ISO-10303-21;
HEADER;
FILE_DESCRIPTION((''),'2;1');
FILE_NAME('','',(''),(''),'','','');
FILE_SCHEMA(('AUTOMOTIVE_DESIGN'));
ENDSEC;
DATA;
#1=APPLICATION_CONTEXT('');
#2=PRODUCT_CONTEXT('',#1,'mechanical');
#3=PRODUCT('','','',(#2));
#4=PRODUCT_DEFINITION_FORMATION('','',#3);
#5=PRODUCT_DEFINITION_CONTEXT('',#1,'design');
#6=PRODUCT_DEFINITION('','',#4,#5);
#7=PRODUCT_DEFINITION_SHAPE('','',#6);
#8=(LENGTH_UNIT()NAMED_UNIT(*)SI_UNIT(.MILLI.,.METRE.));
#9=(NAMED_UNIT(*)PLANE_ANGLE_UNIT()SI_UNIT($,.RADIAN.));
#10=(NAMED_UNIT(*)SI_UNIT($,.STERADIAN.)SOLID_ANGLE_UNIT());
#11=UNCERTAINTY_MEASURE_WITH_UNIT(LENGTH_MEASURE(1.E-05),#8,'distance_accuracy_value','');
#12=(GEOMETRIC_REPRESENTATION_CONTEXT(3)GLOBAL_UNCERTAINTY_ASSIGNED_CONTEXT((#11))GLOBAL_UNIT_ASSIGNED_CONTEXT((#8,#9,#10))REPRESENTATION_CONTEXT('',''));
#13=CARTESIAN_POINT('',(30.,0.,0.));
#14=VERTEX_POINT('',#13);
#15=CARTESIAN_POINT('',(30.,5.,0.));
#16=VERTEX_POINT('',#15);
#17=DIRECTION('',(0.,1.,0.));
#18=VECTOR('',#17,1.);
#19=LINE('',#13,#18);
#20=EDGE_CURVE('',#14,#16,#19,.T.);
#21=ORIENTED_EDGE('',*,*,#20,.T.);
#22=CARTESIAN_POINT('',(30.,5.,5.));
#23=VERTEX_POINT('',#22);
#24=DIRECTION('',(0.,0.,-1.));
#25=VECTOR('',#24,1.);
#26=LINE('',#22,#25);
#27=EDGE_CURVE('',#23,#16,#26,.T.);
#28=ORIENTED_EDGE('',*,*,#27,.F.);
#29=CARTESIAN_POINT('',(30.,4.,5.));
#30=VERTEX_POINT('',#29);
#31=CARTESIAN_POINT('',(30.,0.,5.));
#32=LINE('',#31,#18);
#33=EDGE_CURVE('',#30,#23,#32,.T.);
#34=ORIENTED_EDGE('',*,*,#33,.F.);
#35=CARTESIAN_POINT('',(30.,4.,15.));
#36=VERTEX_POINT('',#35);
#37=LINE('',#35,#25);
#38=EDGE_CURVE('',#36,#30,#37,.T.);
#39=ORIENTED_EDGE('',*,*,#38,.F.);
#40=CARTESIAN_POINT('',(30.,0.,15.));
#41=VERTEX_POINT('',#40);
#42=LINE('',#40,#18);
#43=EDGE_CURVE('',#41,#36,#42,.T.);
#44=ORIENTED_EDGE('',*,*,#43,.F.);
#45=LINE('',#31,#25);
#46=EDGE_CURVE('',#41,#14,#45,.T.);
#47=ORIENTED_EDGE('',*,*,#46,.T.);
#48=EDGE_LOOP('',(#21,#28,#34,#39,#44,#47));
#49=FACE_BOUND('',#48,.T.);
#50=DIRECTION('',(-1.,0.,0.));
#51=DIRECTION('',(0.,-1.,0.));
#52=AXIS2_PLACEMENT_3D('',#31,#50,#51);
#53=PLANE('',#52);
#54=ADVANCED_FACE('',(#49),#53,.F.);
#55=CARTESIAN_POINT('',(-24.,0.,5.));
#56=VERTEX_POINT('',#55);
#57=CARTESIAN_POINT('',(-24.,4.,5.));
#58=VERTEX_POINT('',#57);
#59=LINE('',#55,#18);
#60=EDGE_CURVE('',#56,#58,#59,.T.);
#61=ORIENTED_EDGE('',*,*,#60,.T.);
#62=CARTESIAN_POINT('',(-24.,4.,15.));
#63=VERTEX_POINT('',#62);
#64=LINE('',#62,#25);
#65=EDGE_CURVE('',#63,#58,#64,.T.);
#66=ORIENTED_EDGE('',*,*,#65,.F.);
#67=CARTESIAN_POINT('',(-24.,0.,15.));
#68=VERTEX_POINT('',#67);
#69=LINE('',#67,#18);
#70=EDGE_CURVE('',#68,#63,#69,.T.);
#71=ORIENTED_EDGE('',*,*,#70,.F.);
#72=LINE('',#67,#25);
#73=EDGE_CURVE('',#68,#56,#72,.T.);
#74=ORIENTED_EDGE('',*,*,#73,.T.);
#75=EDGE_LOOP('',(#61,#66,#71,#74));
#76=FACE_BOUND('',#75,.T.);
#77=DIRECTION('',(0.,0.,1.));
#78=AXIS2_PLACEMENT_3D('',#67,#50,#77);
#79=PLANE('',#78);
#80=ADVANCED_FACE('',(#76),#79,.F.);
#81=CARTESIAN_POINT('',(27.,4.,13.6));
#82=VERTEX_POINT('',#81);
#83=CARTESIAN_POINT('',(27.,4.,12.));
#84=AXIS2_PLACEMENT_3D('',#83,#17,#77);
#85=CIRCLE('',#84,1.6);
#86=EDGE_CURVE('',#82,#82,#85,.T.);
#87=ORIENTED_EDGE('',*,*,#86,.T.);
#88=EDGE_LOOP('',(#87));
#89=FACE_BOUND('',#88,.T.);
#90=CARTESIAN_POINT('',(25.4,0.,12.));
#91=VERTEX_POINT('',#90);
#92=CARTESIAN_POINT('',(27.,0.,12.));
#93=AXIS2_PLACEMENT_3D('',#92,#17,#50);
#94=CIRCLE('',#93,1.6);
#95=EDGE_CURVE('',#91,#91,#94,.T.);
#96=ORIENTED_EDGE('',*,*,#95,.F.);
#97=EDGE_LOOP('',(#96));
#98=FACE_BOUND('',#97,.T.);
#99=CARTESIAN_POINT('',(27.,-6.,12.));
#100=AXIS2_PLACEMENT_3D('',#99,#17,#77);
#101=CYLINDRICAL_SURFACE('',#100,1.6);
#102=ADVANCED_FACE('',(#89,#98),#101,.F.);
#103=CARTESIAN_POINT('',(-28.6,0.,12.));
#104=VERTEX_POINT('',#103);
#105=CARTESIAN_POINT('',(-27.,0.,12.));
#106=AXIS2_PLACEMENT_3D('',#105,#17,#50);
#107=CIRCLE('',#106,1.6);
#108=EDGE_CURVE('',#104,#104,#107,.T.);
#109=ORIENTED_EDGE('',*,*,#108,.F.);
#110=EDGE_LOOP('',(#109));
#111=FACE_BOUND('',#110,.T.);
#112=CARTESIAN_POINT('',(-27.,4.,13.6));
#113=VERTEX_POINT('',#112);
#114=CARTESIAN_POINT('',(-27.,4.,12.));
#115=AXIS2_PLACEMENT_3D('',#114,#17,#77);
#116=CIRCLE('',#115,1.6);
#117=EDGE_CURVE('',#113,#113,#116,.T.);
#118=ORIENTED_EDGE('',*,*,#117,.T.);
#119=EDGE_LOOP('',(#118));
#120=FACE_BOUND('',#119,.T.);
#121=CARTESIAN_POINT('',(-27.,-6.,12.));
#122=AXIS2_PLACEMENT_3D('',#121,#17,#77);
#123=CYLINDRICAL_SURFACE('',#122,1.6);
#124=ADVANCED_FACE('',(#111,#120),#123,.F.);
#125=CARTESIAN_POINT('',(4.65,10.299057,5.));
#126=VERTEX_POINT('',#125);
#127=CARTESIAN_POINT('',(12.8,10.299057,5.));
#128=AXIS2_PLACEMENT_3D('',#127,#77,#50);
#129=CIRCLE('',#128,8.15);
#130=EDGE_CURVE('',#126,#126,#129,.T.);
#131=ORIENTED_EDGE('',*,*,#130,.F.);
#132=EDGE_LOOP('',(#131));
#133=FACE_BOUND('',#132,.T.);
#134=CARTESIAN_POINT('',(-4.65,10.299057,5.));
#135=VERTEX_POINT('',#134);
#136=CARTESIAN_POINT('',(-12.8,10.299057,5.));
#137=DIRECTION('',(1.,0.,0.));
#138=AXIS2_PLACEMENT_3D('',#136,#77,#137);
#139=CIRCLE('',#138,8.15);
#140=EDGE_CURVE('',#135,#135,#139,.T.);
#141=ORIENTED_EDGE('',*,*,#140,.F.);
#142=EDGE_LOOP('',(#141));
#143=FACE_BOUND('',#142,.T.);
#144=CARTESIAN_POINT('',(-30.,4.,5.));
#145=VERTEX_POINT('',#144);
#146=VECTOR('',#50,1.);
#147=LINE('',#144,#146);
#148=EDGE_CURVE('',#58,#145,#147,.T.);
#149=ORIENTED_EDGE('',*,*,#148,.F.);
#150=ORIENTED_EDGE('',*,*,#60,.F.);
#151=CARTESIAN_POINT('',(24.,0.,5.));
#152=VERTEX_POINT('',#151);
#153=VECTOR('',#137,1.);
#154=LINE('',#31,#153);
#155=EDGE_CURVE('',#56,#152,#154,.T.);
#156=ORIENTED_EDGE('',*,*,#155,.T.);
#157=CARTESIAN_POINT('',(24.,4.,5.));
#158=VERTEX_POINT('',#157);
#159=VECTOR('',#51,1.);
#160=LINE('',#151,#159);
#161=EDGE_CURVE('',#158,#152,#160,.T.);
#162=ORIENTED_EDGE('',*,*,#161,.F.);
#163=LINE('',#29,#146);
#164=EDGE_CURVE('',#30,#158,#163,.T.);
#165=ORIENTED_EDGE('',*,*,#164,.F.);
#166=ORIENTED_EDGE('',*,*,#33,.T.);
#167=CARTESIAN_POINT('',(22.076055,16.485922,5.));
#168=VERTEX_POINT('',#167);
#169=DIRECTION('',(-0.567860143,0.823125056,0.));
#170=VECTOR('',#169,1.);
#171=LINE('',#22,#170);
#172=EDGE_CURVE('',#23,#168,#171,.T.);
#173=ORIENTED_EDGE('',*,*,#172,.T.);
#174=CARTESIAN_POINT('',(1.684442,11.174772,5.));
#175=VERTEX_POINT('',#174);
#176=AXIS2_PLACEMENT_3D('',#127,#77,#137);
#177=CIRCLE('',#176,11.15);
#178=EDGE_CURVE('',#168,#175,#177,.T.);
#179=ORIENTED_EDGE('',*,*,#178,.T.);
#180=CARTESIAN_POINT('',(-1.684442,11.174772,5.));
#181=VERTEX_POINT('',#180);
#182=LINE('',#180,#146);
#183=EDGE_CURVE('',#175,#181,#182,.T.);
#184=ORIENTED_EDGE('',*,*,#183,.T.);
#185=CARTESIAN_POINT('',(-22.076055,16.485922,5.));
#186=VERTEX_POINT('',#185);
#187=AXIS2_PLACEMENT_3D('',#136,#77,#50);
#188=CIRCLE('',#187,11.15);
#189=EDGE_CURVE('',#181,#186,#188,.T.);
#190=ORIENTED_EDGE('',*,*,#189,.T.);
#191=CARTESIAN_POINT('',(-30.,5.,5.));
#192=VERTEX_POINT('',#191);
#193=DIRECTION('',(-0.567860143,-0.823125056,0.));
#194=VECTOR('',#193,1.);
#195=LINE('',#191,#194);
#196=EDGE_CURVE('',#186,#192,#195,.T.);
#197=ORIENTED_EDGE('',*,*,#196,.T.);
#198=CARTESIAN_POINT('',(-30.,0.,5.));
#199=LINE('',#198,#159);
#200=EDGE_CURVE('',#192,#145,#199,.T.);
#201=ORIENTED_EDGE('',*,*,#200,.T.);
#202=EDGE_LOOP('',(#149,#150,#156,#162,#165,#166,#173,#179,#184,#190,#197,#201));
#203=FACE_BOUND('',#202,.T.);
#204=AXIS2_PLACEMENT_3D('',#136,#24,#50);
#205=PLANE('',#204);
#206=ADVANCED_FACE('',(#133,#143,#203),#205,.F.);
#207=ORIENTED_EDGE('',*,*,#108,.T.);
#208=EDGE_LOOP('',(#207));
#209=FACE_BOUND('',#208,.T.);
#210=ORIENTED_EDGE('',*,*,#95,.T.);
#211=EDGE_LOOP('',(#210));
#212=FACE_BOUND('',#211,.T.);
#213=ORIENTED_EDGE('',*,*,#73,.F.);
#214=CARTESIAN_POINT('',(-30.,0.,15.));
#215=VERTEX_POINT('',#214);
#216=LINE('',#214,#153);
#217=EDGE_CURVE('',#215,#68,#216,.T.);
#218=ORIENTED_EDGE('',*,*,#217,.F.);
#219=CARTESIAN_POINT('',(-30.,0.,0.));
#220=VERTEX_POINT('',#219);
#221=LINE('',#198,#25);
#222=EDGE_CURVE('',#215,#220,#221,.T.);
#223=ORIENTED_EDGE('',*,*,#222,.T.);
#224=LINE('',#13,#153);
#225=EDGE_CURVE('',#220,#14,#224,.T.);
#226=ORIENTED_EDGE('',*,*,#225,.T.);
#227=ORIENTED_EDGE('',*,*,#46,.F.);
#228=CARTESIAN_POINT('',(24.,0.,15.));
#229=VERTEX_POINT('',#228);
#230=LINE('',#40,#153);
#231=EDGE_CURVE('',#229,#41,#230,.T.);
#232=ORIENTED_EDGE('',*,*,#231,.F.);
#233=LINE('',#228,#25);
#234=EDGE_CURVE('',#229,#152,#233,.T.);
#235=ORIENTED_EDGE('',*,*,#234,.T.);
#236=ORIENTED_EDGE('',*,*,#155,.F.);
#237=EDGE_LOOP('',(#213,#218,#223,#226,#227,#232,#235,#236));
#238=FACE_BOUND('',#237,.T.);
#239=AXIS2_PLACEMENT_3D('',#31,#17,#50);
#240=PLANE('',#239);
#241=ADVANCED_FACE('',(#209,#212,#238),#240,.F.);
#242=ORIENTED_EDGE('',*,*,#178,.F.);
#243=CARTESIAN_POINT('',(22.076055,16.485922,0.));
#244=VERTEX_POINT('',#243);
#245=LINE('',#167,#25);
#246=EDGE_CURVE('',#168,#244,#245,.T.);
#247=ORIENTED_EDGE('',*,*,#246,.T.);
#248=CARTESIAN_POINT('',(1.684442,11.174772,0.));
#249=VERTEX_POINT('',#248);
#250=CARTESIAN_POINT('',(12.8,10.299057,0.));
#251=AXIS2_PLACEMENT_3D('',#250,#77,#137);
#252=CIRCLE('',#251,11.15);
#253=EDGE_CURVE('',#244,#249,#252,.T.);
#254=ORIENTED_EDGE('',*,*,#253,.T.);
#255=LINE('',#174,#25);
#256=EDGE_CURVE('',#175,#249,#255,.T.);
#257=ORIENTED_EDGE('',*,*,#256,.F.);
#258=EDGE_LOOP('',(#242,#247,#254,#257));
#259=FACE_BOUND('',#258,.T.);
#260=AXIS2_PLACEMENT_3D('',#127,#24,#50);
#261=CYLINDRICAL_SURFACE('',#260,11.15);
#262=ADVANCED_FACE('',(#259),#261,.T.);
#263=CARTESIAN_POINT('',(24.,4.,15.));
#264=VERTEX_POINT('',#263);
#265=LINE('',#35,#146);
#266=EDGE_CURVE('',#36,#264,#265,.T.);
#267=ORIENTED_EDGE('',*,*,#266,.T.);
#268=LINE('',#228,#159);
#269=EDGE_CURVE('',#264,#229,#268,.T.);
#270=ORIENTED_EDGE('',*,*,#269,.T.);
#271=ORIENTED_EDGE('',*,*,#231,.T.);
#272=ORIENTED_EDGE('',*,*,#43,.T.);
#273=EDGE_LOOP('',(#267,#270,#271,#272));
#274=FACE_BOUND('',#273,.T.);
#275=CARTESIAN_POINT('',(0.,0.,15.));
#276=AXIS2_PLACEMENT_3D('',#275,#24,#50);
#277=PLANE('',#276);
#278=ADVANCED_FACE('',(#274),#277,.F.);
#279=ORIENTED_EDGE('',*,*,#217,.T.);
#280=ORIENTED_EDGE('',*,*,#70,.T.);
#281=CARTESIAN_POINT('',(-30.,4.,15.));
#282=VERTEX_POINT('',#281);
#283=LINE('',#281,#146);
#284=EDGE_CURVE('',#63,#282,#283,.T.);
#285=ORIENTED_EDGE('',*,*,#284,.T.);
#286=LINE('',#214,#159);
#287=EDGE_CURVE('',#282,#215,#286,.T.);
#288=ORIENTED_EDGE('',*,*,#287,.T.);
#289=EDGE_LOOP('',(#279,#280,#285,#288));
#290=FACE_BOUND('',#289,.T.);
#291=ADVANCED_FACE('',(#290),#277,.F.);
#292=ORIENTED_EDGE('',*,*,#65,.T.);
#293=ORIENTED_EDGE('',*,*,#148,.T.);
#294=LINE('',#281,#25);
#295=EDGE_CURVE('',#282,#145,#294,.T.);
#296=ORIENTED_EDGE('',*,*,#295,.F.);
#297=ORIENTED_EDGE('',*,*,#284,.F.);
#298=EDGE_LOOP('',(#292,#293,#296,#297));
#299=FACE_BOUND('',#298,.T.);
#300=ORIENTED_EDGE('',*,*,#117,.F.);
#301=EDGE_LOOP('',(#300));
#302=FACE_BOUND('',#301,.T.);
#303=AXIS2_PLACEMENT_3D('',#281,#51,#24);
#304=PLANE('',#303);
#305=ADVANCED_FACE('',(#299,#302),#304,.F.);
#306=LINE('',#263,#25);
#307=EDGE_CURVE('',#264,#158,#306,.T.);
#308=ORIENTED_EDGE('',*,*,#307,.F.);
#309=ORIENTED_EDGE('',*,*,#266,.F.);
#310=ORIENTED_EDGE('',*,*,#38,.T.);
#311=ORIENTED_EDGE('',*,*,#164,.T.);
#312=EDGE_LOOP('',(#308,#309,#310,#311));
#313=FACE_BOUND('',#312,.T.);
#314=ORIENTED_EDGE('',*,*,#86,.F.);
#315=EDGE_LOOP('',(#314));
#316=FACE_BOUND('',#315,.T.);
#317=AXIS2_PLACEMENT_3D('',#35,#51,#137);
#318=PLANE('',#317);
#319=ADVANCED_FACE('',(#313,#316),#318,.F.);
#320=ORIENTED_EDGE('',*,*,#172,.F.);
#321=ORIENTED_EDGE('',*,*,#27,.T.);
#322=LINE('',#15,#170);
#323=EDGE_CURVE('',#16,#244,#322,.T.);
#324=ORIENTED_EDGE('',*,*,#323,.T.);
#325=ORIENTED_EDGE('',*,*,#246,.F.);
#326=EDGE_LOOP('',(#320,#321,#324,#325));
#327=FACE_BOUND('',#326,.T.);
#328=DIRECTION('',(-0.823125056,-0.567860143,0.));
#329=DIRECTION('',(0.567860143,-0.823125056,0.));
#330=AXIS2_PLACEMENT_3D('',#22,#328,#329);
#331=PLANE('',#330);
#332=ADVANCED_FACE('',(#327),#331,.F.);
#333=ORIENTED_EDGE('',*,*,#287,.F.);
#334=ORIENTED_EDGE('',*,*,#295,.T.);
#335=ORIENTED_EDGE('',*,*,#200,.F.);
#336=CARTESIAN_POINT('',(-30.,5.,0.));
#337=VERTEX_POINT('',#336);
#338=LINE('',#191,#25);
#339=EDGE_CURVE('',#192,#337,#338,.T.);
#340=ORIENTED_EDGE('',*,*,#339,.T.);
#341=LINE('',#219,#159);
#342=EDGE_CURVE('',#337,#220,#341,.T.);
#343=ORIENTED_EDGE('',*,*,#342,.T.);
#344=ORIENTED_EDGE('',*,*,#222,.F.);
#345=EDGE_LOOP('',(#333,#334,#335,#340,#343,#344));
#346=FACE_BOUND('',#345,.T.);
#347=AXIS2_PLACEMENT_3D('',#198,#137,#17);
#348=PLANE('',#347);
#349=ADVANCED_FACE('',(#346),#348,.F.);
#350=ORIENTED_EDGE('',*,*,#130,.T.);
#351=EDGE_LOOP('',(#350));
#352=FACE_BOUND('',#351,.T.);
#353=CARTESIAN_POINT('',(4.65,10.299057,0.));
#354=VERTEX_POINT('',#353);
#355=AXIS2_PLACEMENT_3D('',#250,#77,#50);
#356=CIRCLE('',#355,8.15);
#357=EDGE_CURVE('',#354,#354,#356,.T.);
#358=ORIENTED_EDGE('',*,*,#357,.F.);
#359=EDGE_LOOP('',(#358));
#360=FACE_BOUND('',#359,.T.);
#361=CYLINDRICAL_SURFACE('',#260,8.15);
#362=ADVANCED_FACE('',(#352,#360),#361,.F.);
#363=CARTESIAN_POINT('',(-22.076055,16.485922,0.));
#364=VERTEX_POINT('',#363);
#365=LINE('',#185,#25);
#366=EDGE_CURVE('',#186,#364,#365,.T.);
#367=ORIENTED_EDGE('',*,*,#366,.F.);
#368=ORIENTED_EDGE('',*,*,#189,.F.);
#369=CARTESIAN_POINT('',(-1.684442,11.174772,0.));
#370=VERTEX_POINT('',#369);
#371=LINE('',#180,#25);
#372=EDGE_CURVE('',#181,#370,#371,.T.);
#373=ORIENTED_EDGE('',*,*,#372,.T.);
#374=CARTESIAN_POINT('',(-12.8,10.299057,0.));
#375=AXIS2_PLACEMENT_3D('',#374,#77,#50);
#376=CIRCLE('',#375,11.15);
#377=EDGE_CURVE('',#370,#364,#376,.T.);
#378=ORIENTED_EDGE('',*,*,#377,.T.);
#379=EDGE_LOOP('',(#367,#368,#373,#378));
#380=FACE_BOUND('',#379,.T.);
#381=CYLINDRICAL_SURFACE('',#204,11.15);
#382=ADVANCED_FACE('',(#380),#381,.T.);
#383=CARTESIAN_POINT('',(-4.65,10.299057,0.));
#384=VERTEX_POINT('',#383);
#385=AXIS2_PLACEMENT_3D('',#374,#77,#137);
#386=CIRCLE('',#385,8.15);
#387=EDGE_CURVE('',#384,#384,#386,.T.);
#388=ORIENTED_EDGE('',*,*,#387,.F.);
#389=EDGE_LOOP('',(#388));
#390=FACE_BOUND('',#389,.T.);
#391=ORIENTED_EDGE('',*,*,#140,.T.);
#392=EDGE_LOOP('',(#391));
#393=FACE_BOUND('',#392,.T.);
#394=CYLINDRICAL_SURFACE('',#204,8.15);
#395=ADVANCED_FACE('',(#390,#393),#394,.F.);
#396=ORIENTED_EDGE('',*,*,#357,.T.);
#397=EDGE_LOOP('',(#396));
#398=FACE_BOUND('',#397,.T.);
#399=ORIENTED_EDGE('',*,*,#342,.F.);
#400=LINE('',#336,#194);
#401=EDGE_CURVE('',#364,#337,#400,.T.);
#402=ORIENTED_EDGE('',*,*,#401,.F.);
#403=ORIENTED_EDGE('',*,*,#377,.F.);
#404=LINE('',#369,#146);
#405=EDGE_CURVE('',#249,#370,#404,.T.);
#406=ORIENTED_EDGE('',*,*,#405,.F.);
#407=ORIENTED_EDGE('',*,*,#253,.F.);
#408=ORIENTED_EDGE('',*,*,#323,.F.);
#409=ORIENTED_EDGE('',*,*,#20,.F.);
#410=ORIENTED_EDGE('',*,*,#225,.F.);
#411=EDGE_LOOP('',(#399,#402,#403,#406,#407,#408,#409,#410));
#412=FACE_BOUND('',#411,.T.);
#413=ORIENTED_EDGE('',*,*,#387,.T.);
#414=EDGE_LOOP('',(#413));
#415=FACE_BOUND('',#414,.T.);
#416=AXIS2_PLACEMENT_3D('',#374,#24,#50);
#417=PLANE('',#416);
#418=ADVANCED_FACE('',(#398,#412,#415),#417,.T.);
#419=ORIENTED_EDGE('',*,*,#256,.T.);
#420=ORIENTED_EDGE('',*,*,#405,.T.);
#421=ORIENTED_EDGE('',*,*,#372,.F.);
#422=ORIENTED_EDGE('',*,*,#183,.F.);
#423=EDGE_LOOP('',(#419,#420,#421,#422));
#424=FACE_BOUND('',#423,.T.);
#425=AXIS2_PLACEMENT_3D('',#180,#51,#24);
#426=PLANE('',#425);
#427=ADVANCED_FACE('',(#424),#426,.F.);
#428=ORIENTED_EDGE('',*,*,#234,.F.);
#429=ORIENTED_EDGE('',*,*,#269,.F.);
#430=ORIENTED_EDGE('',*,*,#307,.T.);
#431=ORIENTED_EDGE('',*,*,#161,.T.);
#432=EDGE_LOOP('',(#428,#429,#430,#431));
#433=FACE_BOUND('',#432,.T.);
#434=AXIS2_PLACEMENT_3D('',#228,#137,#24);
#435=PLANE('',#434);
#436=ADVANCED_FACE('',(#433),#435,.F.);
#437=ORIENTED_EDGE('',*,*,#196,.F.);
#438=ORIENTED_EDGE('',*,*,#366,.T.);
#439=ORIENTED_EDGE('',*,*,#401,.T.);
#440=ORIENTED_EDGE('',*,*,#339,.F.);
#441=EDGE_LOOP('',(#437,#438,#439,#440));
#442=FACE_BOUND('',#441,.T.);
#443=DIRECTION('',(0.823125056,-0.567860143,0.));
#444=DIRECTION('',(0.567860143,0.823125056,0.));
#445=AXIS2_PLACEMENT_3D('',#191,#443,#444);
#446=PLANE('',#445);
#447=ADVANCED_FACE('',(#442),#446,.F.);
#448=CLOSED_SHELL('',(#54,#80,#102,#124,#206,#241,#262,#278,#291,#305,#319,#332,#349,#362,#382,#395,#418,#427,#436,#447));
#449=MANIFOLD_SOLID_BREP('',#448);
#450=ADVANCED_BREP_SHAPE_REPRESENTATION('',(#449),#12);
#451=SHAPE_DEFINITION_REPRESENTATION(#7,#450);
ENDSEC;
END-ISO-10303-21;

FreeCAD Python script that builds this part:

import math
import FreeCAD as App
import Part
import Sketcher
from FreeCAD import Vector
Q = App.Units.Quantity


def add_polygon(sketch, points):
    """Adds a closed chain of lines whose ends are joined by coincident constraints."""
    first, n = sketch.GeometryCount, len(points)
    for a, b in zip(points, points[1:] + points[:1]):
        sketch.addGeometry(Part.LineSegment(App.Vector(*a, 0), App.Vector(*b, 0)), False)
    for i in range(n):
        sketch.addConstraint(Sketcher.Constraint("Coincident", first + i, 2, first + (i + 1) % n, 1))

doc = App.newDocument("Part")
params = doc.addObject("Spreadsheet::Sheet", "Params")
for row, (alias, value) in enumerate([
    ("sketch1_diameter", "16.3 mm"),
    ("sketch1_width", "60 mm"),
    ("sketch1_height", "5 mm"),
    ("sketch1_radius", "11.15 mm"),
    ("pad1_length", "5 mm"),
    ("sketch2_width", "6 mm"),
    ("sketch2_height", "4 mm"),
    ("pad2_length", "10 mm"),
    ("sketch3_diameter", "3.2 mm"),
    ("pocket1_length", "10 mm"),
], start=1):
    params.set(f"A{row}", alias)
    params.set(f"B{row}", "=" + value)
    params.setAlias(f"B{row}", alias)

body = doc.addObject("PartDesign::Body", "Body")

# Sketch on XY plane
sketch1 = body.newObject("Sketcher::SketchObject", "Sketch")
sketch1.AttachmentSupport = (doc.getObject("XY_Plane"), [""])
sketch1.MapMode = "FlatFace"
sketch1.addGeometry([
    Part.LineSegment(Vector(-30, 0, 0), Vector(30, 0, 0)),  # 0
    Part.LineSegment(Vector(30, 0, 0), Vector(30, 5, 0)),  # 1
    Part.LineSegment(Vector(30, 5, 0), Vector(22.1, 16.5, 0)),  # 2
    Part.ArcOfCircle(Part.Circle(Vector(12.8, 10.3, 0), Vector(0, 0, 1), 11.2), math.radians(34), math.radians(175)),  # 3
    Part.LineSegment(Vector(1.7, 11.2, 0), Vector(-1.7, 11.2, 0)),  # 4
    Part.ArcOfCircle(Part.Circle(Vector(-12.8, 10.3, 0), Vector(0, 0, 1), 11.2), math.radians(5), math.radians(146)),  # 5
    Part.LineSegment(Vector(-22.1, 16.5, 0), Vector(-30, 5, 0)),  # 6
    Part.LineSegment(Vector(-30, 5, 0), Vector(-30, 0, 0)),  # 7
    Part.Circle(Vector(12.8, 10.3, 0), Vector(0, 0, 1), 8.2),  # 8
    Part.Circle(Vector(-12.8, 10.3, 0), Vector(0, 0, 1), 8.2),  # 9
], False)
sketch1.addConstraint([
    Sketcher.Constraint("Coincident", 0, 2, 1, 1),
    Sketcher.Constraint("Coincident", 1, 2, 2, 1),
    Sketcher.Constraint("Coincident", 2, 2, 3, 1),
    Sketcher.Constraint("Coincident", 3, 2, 4, 1),
    Sketcher.Constraint("Coincident", 4, 2, 5, 1),
    Sketcher.Constraint("Coincident", 5, 2, 6, 1),
    Sketcher.Constraint("Coincident", 6, 2, 7, 1),
    Sketcher.Constraint("Coincident", 7, 2, 0, 1),
    Sketcher.Constraint("Horizontal", 0),
    Sketcher.Constraint("Vertical", 1),
    Sketcher.Constraint("Horizontal", 4),
    Sketcher.Constraint("Vertical", 7),
    Sketcher.Constraint("Coincident", 8, 3, 3, 3),
    Sketcher.Constraint("Coincident", 9, 3, 5, 3),
    Sketcher.Constraint("Equal", 3, 5),
    Sketcher.Constraint("Equal", 8, 9),
    Sketcher.Constraint("Symmetric", 0, 2, 7, 2, -1, 1),
    Sketcher.Constraint("Symmetric", 3, 3, 5, 3, -2),
    Sketcher.Constraint("Horizontal", 2, 2, 5, 2),
    Sketcher.Constraint("Horizontal", 1, 2, 6, 2),
    Sketcher.Constraint("Diameter", 8, Q("16.3 mm")),
    Sketcher.Constraint("DistanceX", 0, 1, 0, 2, Q("60 mm")),
    Sketcher.Constraint("DistanceY", 1, 1, 1, 2, Q("5 mm")),
    Sketcher.Constraint("Radius", 3, Q("11.15 mm")),
    Sketcher.Constraint("DistanceX", -1, 1, 3, 3, Q("12.8 mm")),
    Sketcher.Constraint("DistanceX", 4, 2, 4, 1, Q("3.368885 mm")),
    Sketcher.Constraint("DistanceY", 3, 2, 2, 2, Q("5.31115 mm")),
    Sketcher.Constraint("Distance", 2, Q("13.954043 mm")),
])
sketch1.setExpression("Constraints[20]", "Params.sketch1_diameter")
sketch1.setExpression("Constraints[21]", "Params.sketch1_width")
sketch1.setExpression("Constraints[22]", "Params.sketch1_height")
sketch1.setExpression("Constraints[23]", "Params.sketch1_radius")
pad1 = body.newObject("PartDesign::Pad", "Pad")
pad1.Profile = sketch1
pad1.setExpression("Length", "Params.pad1_length")

# Sketch on XY plane
sketch2 = body.newObject("Sketcher::SketchObject", "Sketch001")
sketch2.AttachmentSupport = (doc.getObject("XY_Plane"), [""])
sketch2.MapMode = "FlatFace"
sketch2.AttachmentOffset = App.Placement(Vector(0, 0, 5), App.Rotation())
add_polygon(sketch2, [(-30, 4), (-30, 0), (-24, 0), (-24, 4)])  # lines 0-3
add_polygon(sketch2, [(24, 4), (24, 0), (30, 0), (30, 4)])  # lines 4-7
sketch2.addConstraint([
    Sketcher.Constraint("Vertical", 0),
    Sketcher.Constraint("Horizontal", 1),
    Sketcher.Constraint("Vertical", 2),
    Sketcher.Constraint("Horizontal", 3),
    Sketcher.Constraint("Vertical", 4),
    Sketcher.Constraint("Horizontal", 5),
    Sketcher.Constraint("Vertical", 6),
    Sketcher.Constraint("Horizontal", 7),
    Sketcher.Constraint("Symmetric", 1, 2, 4, 2, -1, 1),
    Sketcher.Constraint("Symmetric", 0, 2, 5, 2, -2),
    Sketcher.Constraint("Horizontal", 3, 2, 6, 2),
    Sketcher.Constraint("DistanceX", 1, 1, 1, 2, Q("6 mm")),
    Sketcher.Constraint("DistanceY", 0, 2, 0, 1, Q("4 mm")),
    Sketcher.Constraint("DistanceX", 0, 2, -1, 1, Q("30 mm")),
])
sketch2.setExpression("Constraints[19]", "Params.sketch2_width")
sketch2.setExpression("Constraints[20]", "Params.sketch2_height")
pad2 = body.newObject("PartDesign::Pad", "Pad001")
pad2.Profile = sketch2
pad2.setExpression("Length", "Params.pad2_length")

# Sketch on XZ plane
sketch3 = body.newObject("Sketcher::SketchObject", "Sketch002")
sketch3.AttachmentSupport = (doc.getObject("XZ_Plane"), [""])
sketch3.MapMode = "FlatFace"
sketch3.AttachmentOffset = App.Placement(Vector(0, 0, -4), App.Rotation())
sketch3.addGeometry([
    Part.Circle(Vector(-27, 12, 0), Vector(0, 0, 1), 1.6),
    Part.Circle(Vector(27, 12, 0), Vector(0, 0, 1), 1.6),
], False)
sketch3.addConstraint([
    Sketcher.Constraint("Equal", 0, 1),
    Sketcher.Constraint("Symmetric", 0, 3, 1, 3, -2),
    Sketcher.Constraint("Diameter", 0, Q("3.2 mm")),
    Sketcher.Constraint("DistanceX", 0, 3, -1, 1, Q("27 mm")),
    Sketcher.Constraint("DistanceY", -1, 1, 0, 3, Q("12 mm")),
])
sketch3.setExpression("Constraints[2]", "Params.sketch3_diameter")
pocket1 = body.newObject("PartDesign::Pocket", "Pocket")
pocket1.Profile = sketch3
pocket1.setExpression("Length", "Params.pocket1_length")
pocket1.Reversed = True

doc.recompute()
